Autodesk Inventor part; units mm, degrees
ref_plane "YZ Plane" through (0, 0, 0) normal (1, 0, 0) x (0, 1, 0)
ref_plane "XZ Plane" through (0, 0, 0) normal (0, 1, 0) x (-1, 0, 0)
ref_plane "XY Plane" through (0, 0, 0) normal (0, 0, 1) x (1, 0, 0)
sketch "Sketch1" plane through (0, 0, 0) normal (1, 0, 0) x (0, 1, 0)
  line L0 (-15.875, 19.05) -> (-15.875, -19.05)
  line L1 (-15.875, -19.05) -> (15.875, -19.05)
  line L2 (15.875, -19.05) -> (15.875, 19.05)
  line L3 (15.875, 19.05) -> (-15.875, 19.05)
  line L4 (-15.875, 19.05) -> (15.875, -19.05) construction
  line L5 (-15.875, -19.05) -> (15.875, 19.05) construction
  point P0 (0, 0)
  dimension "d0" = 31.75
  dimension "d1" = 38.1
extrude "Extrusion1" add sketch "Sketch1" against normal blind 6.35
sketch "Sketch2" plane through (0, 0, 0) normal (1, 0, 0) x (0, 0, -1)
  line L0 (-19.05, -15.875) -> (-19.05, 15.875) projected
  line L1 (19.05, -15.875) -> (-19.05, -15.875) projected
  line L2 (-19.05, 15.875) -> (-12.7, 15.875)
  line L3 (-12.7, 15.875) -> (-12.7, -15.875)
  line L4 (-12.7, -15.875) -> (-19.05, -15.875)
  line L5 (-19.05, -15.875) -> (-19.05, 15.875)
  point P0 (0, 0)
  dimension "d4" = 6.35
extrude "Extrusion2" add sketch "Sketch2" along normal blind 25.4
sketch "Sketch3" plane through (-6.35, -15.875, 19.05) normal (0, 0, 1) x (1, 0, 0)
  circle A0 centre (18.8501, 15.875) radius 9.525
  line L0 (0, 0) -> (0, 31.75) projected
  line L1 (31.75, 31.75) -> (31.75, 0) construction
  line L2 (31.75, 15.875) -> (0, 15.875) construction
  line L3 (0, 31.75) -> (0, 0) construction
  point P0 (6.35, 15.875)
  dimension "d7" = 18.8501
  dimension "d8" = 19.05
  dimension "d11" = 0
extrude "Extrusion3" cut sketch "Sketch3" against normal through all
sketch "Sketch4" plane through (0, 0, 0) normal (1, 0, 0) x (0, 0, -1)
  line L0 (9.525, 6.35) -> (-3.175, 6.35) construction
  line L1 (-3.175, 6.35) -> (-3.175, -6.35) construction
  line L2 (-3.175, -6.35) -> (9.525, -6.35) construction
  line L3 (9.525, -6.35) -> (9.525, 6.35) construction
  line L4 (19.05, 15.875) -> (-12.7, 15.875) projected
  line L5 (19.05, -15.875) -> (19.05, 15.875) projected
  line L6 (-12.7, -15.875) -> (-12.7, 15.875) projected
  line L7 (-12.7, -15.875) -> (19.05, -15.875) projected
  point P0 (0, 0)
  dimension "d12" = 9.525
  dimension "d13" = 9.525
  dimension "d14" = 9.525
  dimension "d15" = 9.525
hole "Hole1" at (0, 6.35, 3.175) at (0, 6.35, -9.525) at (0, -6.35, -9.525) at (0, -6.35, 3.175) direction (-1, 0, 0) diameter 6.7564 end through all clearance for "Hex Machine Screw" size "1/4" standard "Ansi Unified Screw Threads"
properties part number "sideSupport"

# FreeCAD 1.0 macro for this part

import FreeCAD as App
import Part
import Sketcher
Q = App.Units.Quantity

doc = App.newDocument("Part")
body = doc.addObject("PartDesign::Body", "Body")

sketch1 = body.newObject("Sketcher::SketchObject", "Sketch")
sketch1.AttachmentSupport = (doc.getObject("YZ_Plane"), [""])
sketch1.MapMode = "FlatFace"
sketch1.addGeometry([
    Part.LineSegment(App.Vector(15.875, 19.05, 0), App.Vector(-15.875, 19.05, 0)),
    Part.LineSegment(App.Vector(-15.875, 19.05, 0), App.Vector(-15.875, -19.05, 0)),
    Part.LineSegment(App.Vector(-15.875, -19.05, 0), App.Vector(15.875, -19.05, 0)),
    Part.LineSegment(App.Vector(15.875, -19.05, 0), App.Vector(15.875, 19.05, 0)),
], False)
sketch1.addConstraint([
    Sketcher.Constraint("Coincident", 0, 2, 1, 1),
    Sketcher.Constraint("Coincident", 1, 2, 2, 1),
    Sketcher.Constraint("Coincident", 2, 2, 3, 1),
    Sketcher.Constraint("Coincident", 3, 2, 0, 1),
    Sketcher.Constraint("Horizontal", 0),
    Sketcher.Constraint("Vertical", 1),
    Sketcher.Constraint("Horizontal", 2),
    Sketcher.Constraint("Vertical", 3),
    Sketcher.Constraint("Symmetric", 0, 2, 2, 2, -1, 1),
    Sketcher.Constraint("DistanceY", 1, 2, 1, 1, Q("1.5 in")),
    Sketcher.Constraint("DistanceX", 0, 2, 0, 1, Q("1.25 in")),
])
pad1 = body.newObject("PartDesign::Pad", "Pad")
pad1.Profile = sketch1
pad1.Length = Q("0.25 in")
pad1.Reversed = True

sketch2 = body.newObject("Sketcher::SketchObject", "Sketch001")
sketch2.AttachmentSupport = (doc.getObject("YZ_Plane"), [""])
sketch2.MapMode = "FlatFace"
sketch2.addGeometry([
    Part.LineSegment(App.Vector(15.875, 19.05, 0), App.Vector(-15.875, 19.05, 0)),
    Part.LineSegment(App.Vector(-15.875, 19.05, 0), App.Vector(-15.875, 12.7, 0)),
    Part.LineSegment(App.Vector(-15.875, 12.7, 0), App.Vector(15.875, 12.7, 0)),
    Part.LineSegment(App.Vector(15.875, 12.7, 0), App.Vector(15.875, 19.05, 0)),
], False)
sketch2.addConstraint([
    Sketcher.Constraint("Coincident", 0, 2, 1, 1),
    Sketcher.Constraint("Coincident", 1, 2, 2, 1),
    Sketcher.Constraint("Coincident", 2, 2, 3, 1),
    Sketcher.Constraint("Coincident", 3, 2, 0, 1),
    Sketcher.Constraint("Horizontal", 0),
    Sketcher.Constraint("Vertical", 1),
    Sketcher.Constraint("Horizontal", 2),
    Sketcher.Constraint("Vertical", 3),
    Sketcher.Constraint("DistanceY", 1, 2, 1, 1, Q("0.25 in")),
    Sketcher.Constraint("DistanceX", 0, 2, 0, 1, Q("1.25 in")),
    Sketcher.Constraint("DistanceY", -1, 1, 1, 2, Q("0.5 in")),
    Sketcher.Constraint("DistanceX", 0, 2, -1, 1, Q("0.625 in")),
])
pad2 = body.newObject("PartDesign::Pad", "Pad001")
pad2.Profile = sketch2
pad2.Length = Q("1 in")

sketch3 = body.newObject("Sketcher::SketchObject", "Sketch002")
sketch3.AttachmentSupport = (doc.getObject("XY_Plane"), [""])
sketch3.MapMode = "FlatFace"
sketch3.AttachmentOffset = App.Placement(App.Vector(0, 0, 0.75 * 25.4), App.Rotation())
sketch3.addGeometry(Part.Circle(App.Vector(12.5001, 0, 0), App.Vector(0, 0, 1), 9.525), False)
sketch3.addConstraint([
    Sketcher.Constraint("PointOnObject", 0, 3, -1),
    Sketcher.Constraint("Diameter", 0, Q("0.75 in")),
    Sketcher.Constraint("DistanceX", -1, 1, 0, 3, Q("12.5 mm")),
])
pocket1 = body.newObject("PartDesign::Pocket", "Pocket")
pocket1.Profile = sketch3
pocket1.Type = "ThroughAll"

sketch4 = body.newObject("Sketcher::SketchObject", "Sketch003")
sketch4.AttachmentSupport = (doc.getObject("YZ_Plane"), [""])
sketch4.MapMode = "FlatFace"
sketch4.addGeometry([
    Part.Circle(App.Vector(6.35, 3.175, 0), App.Vector(0, 0, 1), 3.3782),
    Part.Circle(App.Vector(6.35, -9.525, 0), App.Vector(0, 0, 1), 3.3782),
    Part.Circle(App.Vector(-6.35, -9.525, 0), App.Vector(0, 0, 1), 3.3782),
    Part.Circle(App.Vector(-6.35, 3.175, 0), App.Vector(0, 0, 1), 3.3782),
], False)
sketch4.addConstraint([
    Sketcher.Constraint("Equal", 0, 1),
    Sketcher.Constraint("Equal", 1, 2),
    Sketcher.Constraint("Equal", 2, 3),
    Sketcher.Constraint("Symmetric", 1, 3, 2, 3, -2),
    Sketcher.Constraint("Symmetric", 0, 3, 3, 3, -2),
    Sketcher.Constraint("Vertical", 0, 3, 1, 3),
    Sketcher.Constraint("Diameter", 0, Q("0.266 in")),
    Sketcher.Constraint("DistanceY", 1, 3, 0, 3, Q("0.5 in")),
    Sketcher.Constraint("DistanceX", 2, 3, 1, 3, Q("0.5 in")),
    Sketcher.Constraint("DistanceY", -1, 1, 0, 3, Q("0.125 in")),
])
doc.recompute()
hole = body.newObject("PartDesign::Hole", "Hole")
hole.Profile = sketch4
hole.ThreadType = "None"
hole.Diameter = Q("0.266 in")
hole.DepthType = "ThroughAll"

doc.recompute()
